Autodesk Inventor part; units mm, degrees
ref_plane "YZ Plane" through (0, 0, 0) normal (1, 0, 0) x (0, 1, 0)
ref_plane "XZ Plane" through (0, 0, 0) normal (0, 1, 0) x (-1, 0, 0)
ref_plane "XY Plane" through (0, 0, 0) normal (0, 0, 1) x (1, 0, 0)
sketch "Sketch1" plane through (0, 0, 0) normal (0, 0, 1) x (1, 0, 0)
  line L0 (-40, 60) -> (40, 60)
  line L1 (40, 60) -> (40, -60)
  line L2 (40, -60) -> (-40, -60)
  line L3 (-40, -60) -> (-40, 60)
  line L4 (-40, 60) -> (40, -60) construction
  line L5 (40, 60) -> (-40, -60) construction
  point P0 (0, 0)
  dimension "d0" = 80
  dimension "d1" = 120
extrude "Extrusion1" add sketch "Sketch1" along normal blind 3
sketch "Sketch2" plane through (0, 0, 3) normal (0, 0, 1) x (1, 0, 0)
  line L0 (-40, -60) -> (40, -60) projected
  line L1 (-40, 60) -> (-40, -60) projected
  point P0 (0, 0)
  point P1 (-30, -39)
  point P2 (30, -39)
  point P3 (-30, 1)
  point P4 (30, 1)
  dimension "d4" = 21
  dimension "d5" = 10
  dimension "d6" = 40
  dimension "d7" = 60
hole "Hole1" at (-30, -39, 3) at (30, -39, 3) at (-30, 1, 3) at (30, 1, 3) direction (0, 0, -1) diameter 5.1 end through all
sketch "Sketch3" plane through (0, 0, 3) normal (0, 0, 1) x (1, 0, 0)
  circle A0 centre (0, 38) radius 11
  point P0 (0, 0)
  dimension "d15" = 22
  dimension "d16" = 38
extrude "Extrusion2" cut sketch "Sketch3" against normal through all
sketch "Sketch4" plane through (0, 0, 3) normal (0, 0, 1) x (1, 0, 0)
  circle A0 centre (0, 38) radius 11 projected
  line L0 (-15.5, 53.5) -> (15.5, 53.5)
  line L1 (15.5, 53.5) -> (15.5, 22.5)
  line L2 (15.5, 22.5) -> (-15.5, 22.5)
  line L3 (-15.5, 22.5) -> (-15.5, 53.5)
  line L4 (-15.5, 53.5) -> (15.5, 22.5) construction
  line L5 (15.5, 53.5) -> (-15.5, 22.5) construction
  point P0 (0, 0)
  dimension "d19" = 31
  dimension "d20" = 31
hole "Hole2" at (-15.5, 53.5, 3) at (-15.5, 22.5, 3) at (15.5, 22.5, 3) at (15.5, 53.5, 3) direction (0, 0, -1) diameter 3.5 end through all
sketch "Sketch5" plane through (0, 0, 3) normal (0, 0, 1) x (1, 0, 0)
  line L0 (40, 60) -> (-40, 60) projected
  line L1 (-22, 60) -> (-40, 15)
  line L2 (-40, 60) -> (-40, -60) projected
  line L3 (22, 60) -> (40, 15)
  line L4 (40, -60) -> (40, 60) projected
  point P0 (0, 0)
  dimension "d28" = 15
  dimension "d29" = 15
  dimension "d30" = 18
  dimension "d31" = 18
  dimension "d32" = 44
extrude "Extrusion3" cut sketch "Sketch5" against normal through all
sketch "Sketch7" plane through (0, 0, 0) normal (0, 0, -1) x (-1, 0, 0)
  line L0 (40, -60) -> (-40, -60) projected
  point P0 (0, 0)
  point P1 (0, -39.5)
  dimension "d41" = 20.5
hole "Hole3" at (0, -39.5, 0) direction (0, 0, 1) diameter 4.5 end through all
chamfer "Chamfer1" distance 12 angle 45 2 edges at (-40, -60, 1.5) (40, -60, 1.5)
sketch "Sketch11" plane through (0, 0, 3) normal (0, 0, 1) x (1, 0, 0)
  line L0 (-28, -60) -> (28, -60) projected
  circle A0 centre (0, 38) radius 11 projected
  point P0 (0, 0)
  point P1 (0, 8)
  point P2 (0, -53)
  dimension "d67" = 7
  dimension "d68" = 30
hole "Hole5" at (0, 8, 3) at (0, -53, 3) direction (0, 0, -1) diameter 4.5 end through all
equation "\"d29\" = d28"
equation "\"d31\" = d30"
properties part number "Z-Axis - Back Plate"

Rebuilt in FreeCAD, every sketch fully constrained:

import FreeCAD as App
import Part
import Sketcher
Q = App.Units.Quantity


def edges_at(feature, points):
    """Names of the edges that pass closest to the given points."""
    edges = feature.Shape.Edges
    near = lambda p: min(range(len(edges)), key=lambda i: edges[i].distToShape(Part.Vertex(*p))[0])
    return sorted({f"Edge{near(p) + 1}" for p in points})


def add_polygon(sketch, points):
    """Adds a closed chain of lines whose ends are joined by coincident constraints."""
    first, n = sketch.GeometryCount, len(points)
    for a, b in zip(points, points[1:] + points[:1]):
        sketch.addGeometry(Part.LineSegment(App.Vector(*a, 0), App.Vector(*b, 0)), False)
    for i in range(n):
        sketch.addConstraint(Sketcher.Constraint("Coincident", first + i, 2, first + (i + 1) % n, 1))

doc = App.newDocument("Part")
params = doc.addObject("Spreadsheet::Sheet", "Params")
for row, (alias, value) in enumerate([
    ("sketch1_width", "80 mm"),
    ("sketch1_height", "120 mm"),
    ("pad1_length", "3 mm"),
    ("sketch2_diameter", "5.1 mm"),
    ("hole_diameter", "5.1 mm"),
    ("sketch3_diameter", "22 mm"),
    ("sketch4_diameter", "3.5 mm"),
    ("hole2_diameter", "3.5 mm"),
    ("sketch5_width", "18 mm"),
    ("sketch5_height", "45 mm"),
    ("sketch6_diameter", "4.5 mm"),
    ("hole3_diameter", "4.5 mm"),
    ("chamfer_size", "12 mm"),
    ("sketch7_diameter", "4.5 mm"),
    ("hole4_diameter", "4.5 mm"),
], start=1):
    params.set(f"A{row}", alias)
    params.set(f"B{row}", "=" + value)
    params.setAlias(f"B{row}", alias)

body = doc.addObject("PartDesign::Body", "Body")

# Sketch on XY plane
sketch1 = body.newObject("Sketcher::SketchObject", "Sketch")
sketch1.AttachmentSupport = (doc.getObject("XY_Plane"), [""])
sketch1.MapMode = "FlatFace"
add_polygon(sketch1, [(40, 60), (-40, 60), (-40, -60), (40, -60)])  # lines 0-3
sketch1.addConstraint([
    Sketcher.Constraint("Horizontal", 0),
    Sketcher.Constraint("Vertical", 1),
    Sketcher.Constraint("Horizontal", 2),
    Sketcher.Constraint("Vertical", 3),
    Sketcher.Constraint("Symmetric", 0, 2, 2, 2, -1, 1),
    Sketcher.Constraint("DistanceX", 0, 2, 0, 1, Q("80 mm")),
    Sketcher.Constraint("DistanceY", 1, 2, 1, 1, Q("120 mm")),
])
sketch1.setExpression("Constraints[9]", "Params.sketch1_width")
sketch1.setExpression("Constraints[10]", "Params.sketch1_height")
pad1 = body.newObject("PartDesign::Pad", "Pad")
pad1.Profile = sketch1
pad1.setExpression("Length", "Params.pad1_length")

# Sketch on XY plane
sketch2 = body.newObject("Sketcher::SketchObject", "Sketch001")
sketch2.AttachmentSupport = (doc.getObject("XY_Plane"), [""])
sketch2.MapMode = "FlatFace"
sketch2.AttachmentOffset = App.Placement(App.Vector(0, 0, 3), App.Rotation())
sketch2.addGeometry([
    Part.Circle(App.Vector(-30, -39, 0), App.Vector(0, 0, 1), 2.5),
    Part.Circle(App.Vector(30, -39, 0), App.Vector(0, 0, 1), 2.5),
    Part.Circle(App.Vector(-30, 1, 0), App.Vector(0, 0, 1), 2.5),
    Part.Circle(App.Vector(30, 1, 0), App.Vector(0, 0, 1), 2.5),
], False)
sketch2.addConstraint([
    Sketcher.Constraint("Equal", 0, 1),
    Sketcher.Constraint("Equal", 1, 2),
    Sketcher.Constraint("Equal", 2, 3),
    Sketcher.Constraint("Symmetric", 0, 3, 1, 3, -2),
    Sketcher.Constraint("Symmetric", 2, 3, 3, 3, -2),
    Sketcher.Constraint("Vertical", 0, 3, 2, 3),
    Sketcher.Constraint("Diameter", 0, Q("5.1 mm")),
    Sketcher.Constraint("DistanceX", 0, 3, -1, 1, Q("30 mm")),
    Sketcher.Constraint("DistanceY", 0, 3, -1, 1, Q("39 mm")),
    Sketcher.Constraint("DistanceY", -1, 1, 2, 3, Q("1 mm")),
])
sketch2.setExpression("Constraints[6]", "Params.sketch2_diameter")
doc.recompute()
hole = body.newObject("PartDesign::Hole", "Hole")
hole.Profile = sketch2
hole.ThreadType = "None"
hole.setExpression("Diameter", "Params.hole_diameter")
hole.DepthType = "ThroughAll"

# Sketch on XY plane
sketch3 = body.newObject("Sketcher::SketchObject", "Sketch002")
sketch3.AttachmentSupport = (doc.getObject("XY_Plane"), [""])
sketch3.MapMode = "FlatFace"
sketch3.AttachmentOffset = App.Placement(App.Vector(0, 0, 3), App.Rotation())
sketch3.addGeometry(Part.Circle(App.Vector(0, 38, 0), App.Vector(0, 0, 1), 11), False)
sketch3.addConstraint([
    Sketcher.Constraint("PointOnObject", 0, 3, -2),
    Sketcher.Constraint("Diameter", 0, Q("22 mm")),
    Sketcher.Constraint("DistanceY", -1, 1, 0, 3, Q("38 mm")),
])
sketch3.setExpression("Constraints[1]", "Params.sketch3_diameter")
pocket1 = body.newObject("PartDesign::Pocket", "Pocket")
pocket1.Profile = sketch3
pocket1.Type = "ThroughAll"

# Sketch on XY plane
sketch4 = body.newObject("Sketcher::SketchObject", "Sketch003")
sketch4.AttachmentSupport = (doc.getObject("XY_Plane"), [""])
sketch4.MapMode = "FlatFace"
sketch4.AttachmentOffset = App.Placement(App.Vector(0, 0, 3), App.Rotation())
sketch4.addGeometry([
    Part.Circle(App.Vector(-15.5, 53.5, 0), App.Vector(0, 0, 1), 1.8),
    Part.Circle(App.Vector(-15.5, 22.5, 0), App.Vector(0, 0, 1), 1.8),
    Part.Circle(App.Vector(15.5, 22.5, 0), App.Vector(0, 0, 1), 1.8),
    Part.Circle(App.Vector(15.5, 53.5, 0), App.Vector(0, 0, 1), 1.8),
], False)
sketch4.addConstraint([
    Sketcher.Constraint("Equal", 0, 1),
    Sketcher.Constraint("Equal", 1, 2),
    Sketcher.Constraint("Equal", 2, 3),
    Sketcher.Constraint("Symmetric", 1, 3, 2, 3, -2),
    Sketcher.Constraint("Symmetric", 0, 3, 3, 3, -2),
    Sketcher.Constraint("Vertical", 0, 3, 1, 3),
    Sketcher.Constraint("Diameter", 0, Q("3.5 mm")),
    Sketcher.Constraint("DistanceY", 1, 3, 0, 3, Q("31 mm")),
    Sketcher.Constraint("DistanceX", 1, 3, 2, 3, Q("31 mm")),
    Sketcher.Constraint("DistanceY", -1, 1, 0, 3, Q("53.5 mm")),
])
sketch4.setExpression("Constraints[6]", "Params.sketch4_diameter")
doc.recompute()
hole2 = body.newObject("PartDesign::Hole", "Hole001")
hole2.Profile = sketch4
hole2.ThreadType = "None"
hole2.setExpression("Diameter", "Params.hole2_diameter")
hole2.DepthType = "ThroughAll"

# Sketch on XY plane
sketch5 = body.newObject("Sketcher::SketchObject", "Sketch004")
sketch5.AttachmentSupport = (doc.getObject("XY_Plane"), [""])
sketch5.MapMode = "FlatFace"
sketch5.AttachmentOffset = App.Placement(App.Vector(0, 0, 3), App.Rotation())
add_polygon(sketch5, [(40, 15), (40, 60), (22, 60)])  # lines 0-2
add_polygon(sketch5, [(-40, 15), (-22, 60), (-40, 60)])  # lines 3-5
sketch5.addConstraint([
    Sketcher.Constraint("Vertical", 0),
    Sketcher.Constraint("Horizontal", 1),
    Sketcher.Constraint("Horizontal", 4),
    Sketcher.Constraint("Vertical", 5),
    Sketcher.Constraint("Symmetric", 1, 2, 3, 2, -2),
    Sketcher.Constraint("Symmetric", 2, 2, 5, 2, -2),
    Sketcher.Constraint("DistanceX", 1, 2, 1, 1, Q("18 mm")),
    Sketcher.Constraint("DistanceY", -1, 1, 2, 2, Q("15 mm")),
    Sketcher.Constraint("DistanceX", 3, 2, 1, 2, Q("44 mm")),
    Sketcher.Constraint("DistanceY", 0, 1, 0, 2, Q("45 mm")),
])
sketch5.setExpression("Constraints[12]", "Params.sketch5_width")
sketch5.setExpression("Constraints[15]", "Params.sketch5_height")
pocket2 = body.newObject("PartDesign::Pocket", "Pocket001")
pocket2.Profile = sketch5
pocket2.Type = "ThroughAll"

# Sketch on XY plane
sketch6 = body.newObject("Sketcher::SketchObject", "Sketch005")
sketch6.AttachmentSupport = (doc.getObject("XY_Plane"), [""])
sketch6.MapMode = "FlatFace"
sketch6.addGeometry(Part.Circle(App.Vector(0, -39.5, 0), App.Vector(0, 0, 1), 2.2), False)
sketch6.addConstraint([
    Sketcher.Constraint("PointOnObject", 0, 3, -2),
    Sketcher.Constraint("Diameter", 0, Q("4.5 mm")),
    Sketcher.Constraint("DistanceY", 0, 3, -1, 1, Q("39.5 mm")),
])
sketch6.setExpression("Constraints[1]", "Params.sketch6_diameter")
doc.recompute()
hole3 = body.newObject("PartDesign::Hole", "Hole002")
hole3.Profile = sketch6
hole3.ThreadType = "None"
hole3.setExpression("Diameter", "Params.hole3_diameter")
hole3.DepthType = "ThroughAll"
hole3.Reversed = True
doc.recompute()

chamfer = body.newObject("PartDesign::Chamfer", "Chamfer")
chamfer.Base = (hole3, edges_at(hole3, [(-40, -60, 1.5), (40, -60, 1.5)]))
chamfer.setExpression("Size", "Params.chamfer_size")

# Sketch on XY plane
sketch7 = body.newObject("Sketcher::SketchObject", "Sketch006")
sketch7.AttachmentSupport = (doc.getObject("XY_Plane"), [""])
sketch7.MapMode = "FlatFace"
sketch7.AttachmentOffset = App.Placement(App.Vector(0, 0, 3), App.Rotation())
sketch7.addGeometry([
    Part.Circle(App.Vector(0, 8, 0), App.Vector(0, 0, 1), 2.2),
    Part.Circle(App.Vector(0, -53, 0), App.Vector(0, 0, 1), 2.2),
], False)
sketch7.addConstraint([
    Sketcher.Constraint("Equal", 0, 1),
    Sketcher.Constraint("PointOnObject", 0, 3, -2),
    Sketcher.Constraint("PointOnObject", 1, 3, -2),
    Sketcher.Constraint("Diameter", 0, Q("4.5 mm")),
    Sketcher.Constraint("DistanceY", -1, 1, 0, 3, Q("8 mm")),
    Sketcher.Constraint("DistanceY", 1, 3, -1, 1, Q("53 mm")),
])
sketch7.setExpression("Constraints[3]", "Params.sketch7_diameter")
doc.recompute()
hole4 = body.newObject("PartDesign::Hole", "Hole003")
hole4.Profile = sketch7
hole4.ThreadType = "None"
hole4.setExpression("Diameter", "Params.hole4_diameter")
hole4.DepthType = "ThroughAll"

doc.recompute()
